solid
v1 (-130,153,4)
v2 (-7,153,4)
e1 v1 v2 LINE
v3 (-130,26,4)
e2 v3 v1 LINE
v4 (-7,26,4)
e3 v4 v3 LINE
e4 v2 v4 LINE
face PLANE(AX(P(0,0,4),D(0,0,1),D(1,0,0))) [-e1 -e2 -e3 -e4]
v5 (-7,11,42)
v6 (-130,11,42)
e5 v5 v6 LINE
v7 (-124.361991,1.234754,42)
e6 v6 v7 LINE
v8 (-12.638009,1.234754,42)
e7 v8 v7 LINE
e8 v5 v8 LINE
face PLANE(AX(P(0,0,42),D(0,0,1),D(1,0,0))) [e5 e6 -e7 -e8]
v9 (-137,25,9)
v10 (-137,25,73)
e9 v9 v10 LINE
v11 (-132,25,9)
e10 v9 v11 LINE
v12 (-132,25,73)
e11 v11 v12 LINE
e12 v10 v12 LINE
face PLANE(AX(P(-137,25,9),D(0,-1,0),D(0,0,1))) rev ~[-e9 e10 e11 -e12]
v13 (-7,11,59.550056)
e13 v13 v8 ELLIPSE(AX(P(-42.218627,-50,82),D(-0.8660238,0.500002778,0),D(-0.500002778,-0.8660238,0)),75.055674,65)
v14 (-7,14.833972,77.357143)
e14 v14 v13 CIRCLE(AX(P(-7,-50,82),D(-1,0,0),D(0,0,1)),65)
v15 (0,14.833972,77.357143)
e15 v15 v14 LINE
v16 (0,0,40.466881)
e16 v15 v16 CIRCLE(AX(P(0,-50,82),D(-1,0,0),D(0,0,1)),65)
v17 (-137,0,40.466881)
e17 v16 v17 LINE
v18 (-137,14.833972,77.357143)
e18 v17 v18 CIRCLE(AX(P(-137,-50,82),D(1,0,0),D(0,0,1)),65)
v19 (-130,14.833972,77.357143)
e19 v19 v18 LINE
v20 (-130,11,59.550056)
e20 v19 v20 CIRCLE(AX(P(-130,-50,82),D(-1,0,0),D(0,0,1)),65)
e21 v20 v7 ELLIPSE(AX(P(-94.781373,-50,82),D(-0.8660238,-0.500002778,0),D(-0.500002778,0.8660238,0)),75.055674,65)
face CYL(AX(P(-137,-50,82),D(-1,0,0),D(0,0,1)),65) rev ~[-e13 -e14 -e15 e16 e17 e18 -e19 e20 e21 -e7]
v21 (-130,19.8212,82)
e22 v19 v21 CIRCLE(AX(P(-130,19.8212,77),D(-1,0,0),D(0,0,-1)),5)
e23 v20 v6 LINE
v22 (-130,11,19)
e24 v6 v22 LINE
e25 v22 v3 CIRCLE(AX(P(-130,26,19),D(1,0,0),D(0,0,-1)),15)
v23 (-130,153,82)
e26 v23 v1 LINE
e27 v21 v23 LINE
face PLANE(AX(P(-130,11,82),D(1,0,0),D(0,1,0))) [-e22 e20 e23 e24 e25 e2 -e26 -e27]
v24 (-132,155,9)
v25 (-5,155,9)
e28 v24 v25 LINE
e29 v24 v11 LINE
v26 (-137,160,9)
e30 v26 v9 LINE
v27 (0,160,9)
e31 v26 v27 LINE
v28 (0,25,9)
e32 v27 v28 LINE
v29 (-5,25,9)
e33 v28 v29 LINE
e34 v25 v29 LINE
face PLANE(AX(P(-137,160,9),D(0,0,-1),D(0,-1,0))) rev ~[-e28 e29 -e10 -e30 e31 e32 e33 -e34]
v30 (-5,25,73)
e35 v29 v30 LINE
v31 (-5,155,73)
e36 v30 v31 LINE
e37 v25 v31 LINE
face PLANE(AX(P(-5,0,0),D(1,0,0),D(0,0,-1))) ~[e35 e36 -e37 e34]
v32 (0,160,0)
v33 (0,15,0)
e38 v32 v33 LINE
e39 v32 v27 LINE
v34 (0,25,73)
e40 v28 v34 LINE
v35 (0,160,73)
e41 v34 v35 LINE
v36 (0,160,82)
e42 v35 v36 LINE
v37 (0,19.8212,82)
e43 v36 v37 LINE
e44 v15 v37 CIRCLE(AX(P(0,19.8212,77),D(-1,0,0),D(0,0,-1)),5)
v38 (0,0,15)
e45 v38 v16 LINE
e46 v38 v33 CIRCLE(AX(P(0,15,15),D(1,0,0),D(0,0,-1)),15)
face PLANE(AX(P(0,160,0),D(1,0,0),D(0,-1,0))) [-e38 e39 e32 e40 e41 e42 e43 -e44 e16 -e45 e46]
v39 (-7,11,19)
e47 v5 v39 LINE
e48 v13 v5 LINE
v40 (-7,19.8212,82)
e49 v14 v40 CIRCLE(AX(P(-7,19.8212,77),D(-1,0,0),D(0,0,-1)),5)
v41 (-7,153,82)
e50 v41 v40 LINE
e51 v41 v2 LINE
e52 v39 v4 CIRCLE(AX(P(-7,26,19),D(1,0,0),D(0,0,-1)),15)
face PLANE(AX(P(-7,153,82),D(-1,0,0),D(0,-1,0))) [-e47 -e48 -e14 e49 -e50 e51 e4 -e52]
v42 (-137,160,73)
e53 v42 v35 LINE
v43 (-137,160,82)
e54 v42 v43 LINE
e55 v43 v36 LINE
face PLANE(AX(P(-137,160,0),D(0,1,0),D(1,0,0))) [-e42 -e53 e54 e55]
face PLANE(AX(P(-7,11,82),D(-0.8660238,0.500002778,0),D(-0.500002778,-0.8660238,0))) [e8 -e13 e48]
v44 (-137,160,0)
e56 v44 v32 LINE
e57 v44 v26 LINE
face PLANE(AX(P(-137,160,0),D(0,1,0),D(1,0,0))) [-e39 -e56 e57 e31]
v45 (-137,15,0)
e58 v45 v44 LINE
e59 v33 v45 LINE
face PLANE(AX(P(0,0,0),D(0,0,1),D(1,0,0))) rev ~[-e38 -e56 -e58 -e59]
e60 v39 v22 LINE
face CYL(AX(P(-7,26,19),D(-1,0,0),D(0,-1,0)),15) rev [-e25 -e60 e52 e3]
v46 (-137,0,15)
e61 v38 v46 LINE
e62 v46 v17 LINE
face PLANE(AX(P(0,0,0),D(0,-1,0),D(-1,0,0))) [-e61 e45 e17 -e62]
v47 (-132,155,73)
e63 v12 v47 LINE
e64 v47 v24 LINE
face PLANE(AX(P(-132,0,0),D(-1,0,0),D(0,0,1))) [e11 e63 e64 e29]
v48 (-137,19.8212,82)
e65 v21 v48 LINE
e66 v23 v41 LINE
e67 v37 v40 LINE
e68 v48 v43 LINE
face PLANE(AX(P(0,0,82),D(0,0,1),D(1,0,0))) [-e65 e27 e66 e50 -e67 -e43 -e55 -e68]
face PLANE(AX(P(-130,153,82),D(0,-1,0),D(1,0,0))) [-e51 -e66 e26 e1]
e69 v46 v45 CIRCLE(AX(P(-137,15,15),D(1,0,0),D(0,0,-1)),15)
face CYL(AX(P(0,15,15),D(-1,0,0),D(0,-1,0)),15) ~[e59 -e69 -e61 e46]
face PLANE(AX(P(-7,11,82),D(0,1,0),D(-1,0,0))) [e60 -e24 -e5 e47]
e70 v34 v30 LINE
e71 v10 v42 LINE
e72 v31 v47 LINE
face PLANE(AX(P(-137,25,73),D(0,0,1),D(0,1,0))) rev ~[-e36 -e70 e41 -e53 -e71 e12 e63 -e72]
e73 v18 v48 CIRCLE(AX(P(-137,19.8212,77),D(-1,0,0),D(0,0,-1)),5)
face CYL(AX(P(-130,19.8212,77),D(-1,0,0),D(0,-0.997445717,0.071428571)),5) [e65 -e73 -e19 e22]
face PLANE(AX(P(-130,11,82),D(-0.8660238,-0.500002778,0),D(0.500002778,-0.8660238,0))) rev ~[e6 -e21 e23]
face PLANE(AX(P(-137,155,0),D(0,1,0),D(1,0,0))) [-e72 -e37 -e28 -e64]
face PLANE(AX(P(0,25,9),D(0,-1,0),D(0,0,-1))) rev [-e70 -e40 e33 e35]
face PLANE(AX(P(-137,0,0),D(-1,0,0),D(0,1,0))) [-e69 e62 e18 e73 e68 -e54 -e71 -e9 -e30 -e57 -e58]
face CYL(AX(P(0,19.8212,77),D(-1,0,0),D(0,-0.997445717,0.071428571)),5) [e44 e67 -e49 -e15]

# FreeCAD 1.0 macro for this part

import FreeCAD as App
import Part
import Sketcher
Q = App.Units.Quantity


def edges_at(feature, points):
    """Names of the edges that pass closest to the given points."""
    edges = feature.Shape.Edges
    near = lambda p: min(range(len(edges)), key=lambda i: edges[i].distToShape(Part.Vertex(*p))[0])
    return sorted({f"Edge{near(p) + 1}" for p in points})

doc = App.newDocument("Part")
params = doc.addObject("Spreadsheet::Sheet", "Params")
for row, (alias, value) in enumerate([
    ("sketch1_width", "137 mm"),
    ("sketch1_height", "160 mm"),
    ("pad1_length", "82 mm"),
    ("sketch2_width", "123 mm"),
    ("sketch2_height", "142 mm"),
    ("pocket1_length", "78 mm"),
    ("sketch3_width", "123 mm"),
    ("pocket2_length", "40 mm"),
    ("sketch4_width", "135 mm"),
    ("sketch4_height", "64 mm"),
    ("pocket3_length", "5 mm"),
    ("sketch5_width", "127 mm"),
    ("sketch5_height", "64 mm"),
    ("pocket4_length", "5 mm"),
    ("fillet_radius", "15 mm"),
    ("fillet2_radius", "15 mm"),
    ("sketch6_diameter", "130 mm"),
    ("fillet3_radius", "5 mm"),
], start=1):
    params.set(f"A{row}", alias)
    params.set(f"B{row}", "=" + value)
    params.setAlias(f"B{row}", alias)

body = doc.addObject("PartDesign::Body", "Body")

sketch1 = doc.addObject("Sketcher::SketchObject", "Sketch")
body.addObject(sketch1)
sketch1.AttachmentSupport = (doc.XY_Plane, [""])
sketch1.MapMode = "FlatFace"
sketch1.addGeometry(Part.LineSegment(App.Vector(-137, 0, 0), App.Vector(0, 0, 0)), False)
sketch1.addGeometry(Part.LineSegment(App.Vector(0, 0, 0), App.Vector(0, 160, 0)), False)
sketch1.addGeometry(Part.LineSegment(App.Vector(0, 160, 0), App.Vector(-137, 160, 0)), False)
sketch1.addGeometry(Part.LineSegment(App.Vector(-137, 160, 0), App.Vector(-137, 0, 0)), False)
sketch1.addConstraint(Sketcher.Constraint("Coincident", 0, 2, 1, 1))
sketch1.addConstraint(Sketcher.Constraint("Coincident", 1, 2, 2, 1))
sketch1.addConstraint(Sketcher.Constraint("Coincident", 2, 2, 3, 1))
sketch1.addConstraint(Sketcher.Constraint("Coincident", 3, 2, 0, 1))
sketch1.addConstraint(Sketcher.Constraint("Horizontal", 0))
sketch1.addConstraint(Sketcher.Constraint("Vertical", 1))
sketch1.addConstraint(Sketcher.Constraint("Horizontal", 2))
sketch1.addConstraint(Sketcher.Constraint("Vertical", 3))
sketch1.addConstraint(Sketcher.Constraint("Coincident", 0, 2, -1, 1))
sketch1.addConstraint(Sketcher.Constraint("DistanceX", 0, 1, 0, 2, 137.0))
sketch1.addConstraint(Sketcher.Constraint("DistanceY", 1, 1, 1, 2, 160.0))
sketch1.setExpression("Constraints[9]", "Params.sketch1_width")
sketch1.setExpression("Constraints[10]", "Params.sketch1_height")
pad1 = doc.addObject("PartDesign::Pad", "Pad")
body.addObject(pad1)
pad1.Profile = sketch1
pad1.setExpression("Length", "Params.pad1_length")

sketch2 = doc.addObject("Sketcher::SketchObject", "Sketch001")
body.addObject(sketch2)
sketch2.AttachmentSupport = (doc.XY_Plane, [""])
sketch2.MapMode = "FlatFace"
sketch2.AttachmentOffset = App.Placement(App.Vector(0, 0, 82), App.Rotation())
sketch2.addGeometry(Part.LineSegment(App.Vector(-130, 11, 0), App.Vector(-7, 11, 0)), False)
sketch2.addGeometry(Part.LineSegment(App.Vector(-7, 11, 0), App.Vector(-7, 153, 0)), False)
sketch2.addGeometry(Part.LineSegment(App.Vector(-7, 153, 0), App.Vector(-130, 153, 0)), False)
sketch2.addGeometry(Part.LineSegment(App.Vector(-130, 153, 0), App.Vector(-130, 11, 0)), False)
sketch2.addConstraint(Sketcher.Constraint("Coincident", 0, 2, 1, 1))
sketch2.addConstraint(Sketcher.Constraint("Coincident", 1, 2, 2, 1))
sketch2.addConstraint(Sketcher.Constraint("Coincident", 2, 2, 3, 1))
sketch2.addConstraint(Sketcher.Constraint("Coincident", 3, 2, 0, 1))
sketch2.addConstraint(Sketcher.Constraint("Horizontal", 0))
sketch2.addConstraint(Sketcher.Constraint("Vertical", 1))
sketch2.addConstraint(Sketcher.Constraint("Horizontal", 2))
sketch2.addConstraint(Sketcher.Constraint("Vertical", 3))
sketch2.addConstraint(Sketcher.Constraint("DistanceX", 0, 2, -1, 1, 7.0))
sketch2.addConstraint(Sketcher.Constraint("DistanceY", -1, 1, 0, 2, 11.0))
sketch2.addConstraint(Sketcher.Constraint("DistanceX", 0, 1, 0, 2, 123.0))
sketch2.addConstraint(Sketcher.Constraint("DistanceY", 1, 1, 1, 2, 142.0))
sketch2.setExpression("Constraints[10]", "Params.sketch2_width")
sketch2.setExpression("Constraints[11]", "Params.sketch2_height")
pocket1 = doc.addObject("PartDesign::Pocket", "Pocket")
body.addObject(pocket1)
pocket1.Profile = sketch2
pocket1.setExpression("Length", "Params.pocket1_length")

sketch3 = doc.addObject("Sketcher::SketchObject", "Sketch002")
body.addObject(sketch3)
sketch3.AttachmentSupport = (doc.XY_Plane, [""])
sketch3.MapMode = "FlatFace"
sketch3.AttachmentOffset = App.Placement(App.Vector(0, 0, 82), App.Rotation())
sketch3.addGeometry(Part.LineSegment(App.Vector(-13.3509, 0, 0), App.Vector(-7, 11, 0)), False)
sketch3.addGeometry(Part.LineSegment(App.Vector(-7, 11, 0), App.Vector(-130, 11, 0)), False)
sketch3.addGeometry(Part.LineSegment(App.Vector(-130, 11, 0), App.Vector(-123.6491, 0, 0)), False)
sketch3.addGeometry(Part.LineSegment(App.Vector(-123.6491, 0, 0), App.Vector(-13.3509, 0, 0)), False)
sketch3.addConstraint(Sketcher.Constraint("Coincident", 0, 2, 1, 1))
sketch3.addConstraint(Sketcher.Constraint("Coincident", 1, 2, 2, 1))
sketch3.addConstraint(Sketcher.Constraint("Coincident", 2, 2, 3, 1))
sketch3.addConstraint(Sketcher.Constraint("Coincident", 3, 2, 0, 1))
sketch3.addConstraint(Sketcher.Constraint("Horizontal", 1))
sketch3.addConstraint(Sketcher.Constraint("Horizontal", 3))
sketch3.addConstraint(Sketcher.Constraint("PointOnObject", 2, 2, -1))
sketch3.addConstraint(Sketcher.Constraint("Equal", 0, 2))
sketch3.addConstraint(Sketcher.Constraint("Angle", 0, Q("59.9998 deg")))
sketch3.addConstraint(Sketcher.Constraint("DistanceX", 1, 2, 1, 1, 123.0))
sketch3.addConstraint(Sketcher.Constraint("DistanceX", 0, 2, -1, 1, 7.0))
sketch3.addConstraint(Sketcher.Constraint("DistanceY", -1, 1, 0, 2, 11.0))
sketch3.setExpression("Constraints[9]", "Params.sketch3_width")
pocket2 = doc.addObject("PartDesign::Pocket", "Pocket001")
body.addObject(pocket2)
pocket2.Profile = sketch3
pocket2.setExpression("Length", "Params.pocket2_length")

sketch4 = doc.addObject("Sketcher::SketchObject", "Sketch003")
body.addObject(sketch4)
sketch4.AttachmentSupport = (doc.YZ_Plane, [""])
sketch4.MapMode = "FlatFace"
sketch4.AttachmentOffset = App.Placement(App.Vector(0, 0, -137), App.Rotation())
sketch4.addGeometry(Part.LineSegment(App.Vector(25, 73, 0), App.Vector(160, 73, 0)), False)
sketch4.addGeometry(Part.LineSegment(App.Vector(160, 73, 0), App.Vector(160, 9, 0)), False)
sketch4.addGeometry(Part.LineSegment(App.Vector(160, 9, 0), App.Vector(25, 9, 0)), False)
sketch4.addGeometry(Part.LineSegment(App.Vector(25, 9, 0), App.Vector(25, 73, 0)), False)
sketch4.addConstraint(Sketcher.Constraint("Coincident", 0, 2, 1, 1))
sketch4.addConstraint(Sketcher.Constraint("Coincident", 1, 2, 2, 1))
sketch4.addConstraint(Sketcher.Constraint("Coincident", 2, 2, 3, 1))
sketch4.addConstraint(Sketcher.Constraint("Coincident", 3, 2, 0, 1))
sketch4.addConstraint(Sketcher.Constraint("Horizontal", 0))
sketch4.addConstraint(Sketcher.Constraint("Vertical", 1))
sketch4.addConstraint(Sketcher.Constraint("Horizontal", 2))
sketch4.addConstraint(Sketcher.Constraint("Vertical", 3))
sketch4.addConstraint(Sketcher.Constraint("DistanceY", -1, 1, 1, 2, 9.0))
sketch4.addConstraint(Sketcher.Constraint("DistanceX", -1, 1, 2, 2, 25.0))
sketch4.addConstraint(Sketcher.Constraint("DistanceX", 0, 1, 0, 2, 135.0))
sketch4.addConstraint(Sketcher.Constraint("DistanceY", 1, 2, 1, 1, 64.0))
sketch4.setExpression("Constraints[10]", "Params.sketch4_width")
sketch4.setExpression("Constraints[11]", "Params.sketch4_height")
pocket3 = doc.addObject("PartDesign::Pocket", "Pocket002")
body.addObject(pocket3)
pocket3.Profile = sketch4
pocket3.setExpression("Length", "Params.pocket3_length")
pocket3.Reversed = True
doc.recompute()

datumplane = doc.addObject("PartDesign::Plane", "DatumPlane")
body.addObject(datumplane)
datumplane.AttachmentSupport = (doc.YZ_Plane, [""])
datumplane.MapMode = "FlatFace"
datumplane.AttachmentOffset = App.Placement(App.Vector(0, 0, -68.5), App.Rotation())
mirrored = doc.addObject("PartDesign::Mirrored", "Mirrored")
body.addObject(mirrored)
mirrored.Originals = [pocket3]
mirrored.MirrorPlane = (datumplane, [""])
body.Tip = mirrored

sketch5 = doc.addObject("Sketcher::SketchObject", "Sketch004")
body.addObject(sketch5)
sketch5.AttachmentSupport = (doc.XZ_Plane, [""])
sketch5.MapMode = "FlatFace"
sketch5.AttachmentOffset = App.Placement(App.Vector(0, 0, -160), App.Rotation())
sketch5.addGeometry(Part.LineSegment(App.Vector(-132, 9, 0), App.Vector(-132, 73, 0)), False)
sketch5.addGeometry(Part.LineSegment(App.Vector(-132, 73, 0), App.Vector(-5, 73, 0)), False)
sketch5.addGeometry(Part.LineSegment(App.Vector(-5, 73, 0), App.Vector(-5, 9, 0)), False)
sketch5.addGeometry(Part.LineSegment(App.Vector(-5, 9, 0), App.Vector(-132, 9, 0)), False)
sketch5.addConstraint(Sketcher.Constraint("Coincident", 0, 2, 1, 1))
sketch5.addConstraint(Sketcher.Constraint("Coincident", 1, 2, 2, 1))
sketch5.addConstraint(Sketcher.Constraint("Coincident", 2, 2, 3, 1))
sketch5.addConstraint(Sketcher.Constraint("Coincident", 3, 2, 0, 1))
sketch5.addConstraint(Sketcher.Constraint("Vertical", 0))
sketch5.addConstraint(Sketcher.Constraint("Horizontal", 1))
sketch5.addConstraint(Sketcher.Constraint("Vertical", 2))
sketch5.addConstraint(Sketcher.Constraint("Horizontal", 3))
sketch5.addConstraint(Sketcher.Constraint("DistanceX", 1, 1, 1, 2, 127.0))
sketch5.addConstraint(Sketcher.Constraint("DistanceY", 0, 1, 0, 2, 64.0))
sketch5.addConstraint(Sketcher.Constraint("DistanceX", 0, 2, -1, 1, 132.0))
sketch5.addConstraint(Sketcher.Constraint("DistanceY", -1, 1, 0, 2, 73.0))
sketch5.setExpression("Constraints[8]", "Params.sketch5_width")
sketch5.setExpression("Constraints[9]", "Params.sketch5_height")
pocket4 = doc.addObject("PartDesign::Pocket", "Pocket003")
body.addObject(pocket4)
pocket4.Profile = sketch5
pocket4.setExpression("Length", "Params.pocket4_length")
pocket4.Reversed = True
doc.recompute()

fillet = doc.addObject("PartDesign::Fillet", "Fillet")
body.addObject(fillet)
fillet.Base = (pocket4, edges_at(pocket4, [(-68.5, 11, 4)]))
fillet.setExpression("Radius", "Params.fillet_radius")
doc.recompute()

fillet2 = doc.addObject("PartDesign::Fillet", "Fillet001")
body.addObject(fillet2)
fillet2.Base = (fillet, edges_at(fillet, [(-68.5, 0, 0)]))
fillet2.setExpression("Radius", "Params.fillet2_radius")

sketch6 = doc.addObject("Sketcher::SketchObject", "Sketch005")
body.addObject(sketch6)
sketch6.AttachmentSupport = (doc.YZ_Plane, [""])
sketch6.MapMode = "FlatFace"
sketch6.AttachmentOffset = App.Placement(App.Vector(0, 0, -137), App.Rotation())
sketch6.addGeometry(Part.Circle(App.Vector(-50, 82, 0), App.Vector(0, 0, 1), 65), False)
sketch6.addConstraint(Sketcher.Constraint("Diameter", 0, 130.0))
sketch6.addConstraint(Sketcher.Constraint("DistanceX", 0, 3, -1, 1, 50.0))
sketch6.addConstraint(Sketcher.Constraint("DistanceY", -1, 1, 0, 3, 82.0))
sketch6.setExpression("Constraints[0]", "Params.sketch6_diameter")
pocket5 = doc.addObject("PartDesign::Pocket", "Pocket004")
body.addObject(pocket5)
pocket5.Profile = sketch6
pocket5.Type = "ThroughAll"
pocket5.Reversed = True
doc.recompute()

fillet3 = doc.addObject("PartDesign::Fillet", "Fillet002")
body.addObject(fillet3)
fillet3.Base = (pocket5, edges_at(pocket5, [(-133.5, 15, 82), (-3.5, 15, 82)]))
fillet3.setExpression("Radius", "Params.fillet3_radius")

doc.recompute()
